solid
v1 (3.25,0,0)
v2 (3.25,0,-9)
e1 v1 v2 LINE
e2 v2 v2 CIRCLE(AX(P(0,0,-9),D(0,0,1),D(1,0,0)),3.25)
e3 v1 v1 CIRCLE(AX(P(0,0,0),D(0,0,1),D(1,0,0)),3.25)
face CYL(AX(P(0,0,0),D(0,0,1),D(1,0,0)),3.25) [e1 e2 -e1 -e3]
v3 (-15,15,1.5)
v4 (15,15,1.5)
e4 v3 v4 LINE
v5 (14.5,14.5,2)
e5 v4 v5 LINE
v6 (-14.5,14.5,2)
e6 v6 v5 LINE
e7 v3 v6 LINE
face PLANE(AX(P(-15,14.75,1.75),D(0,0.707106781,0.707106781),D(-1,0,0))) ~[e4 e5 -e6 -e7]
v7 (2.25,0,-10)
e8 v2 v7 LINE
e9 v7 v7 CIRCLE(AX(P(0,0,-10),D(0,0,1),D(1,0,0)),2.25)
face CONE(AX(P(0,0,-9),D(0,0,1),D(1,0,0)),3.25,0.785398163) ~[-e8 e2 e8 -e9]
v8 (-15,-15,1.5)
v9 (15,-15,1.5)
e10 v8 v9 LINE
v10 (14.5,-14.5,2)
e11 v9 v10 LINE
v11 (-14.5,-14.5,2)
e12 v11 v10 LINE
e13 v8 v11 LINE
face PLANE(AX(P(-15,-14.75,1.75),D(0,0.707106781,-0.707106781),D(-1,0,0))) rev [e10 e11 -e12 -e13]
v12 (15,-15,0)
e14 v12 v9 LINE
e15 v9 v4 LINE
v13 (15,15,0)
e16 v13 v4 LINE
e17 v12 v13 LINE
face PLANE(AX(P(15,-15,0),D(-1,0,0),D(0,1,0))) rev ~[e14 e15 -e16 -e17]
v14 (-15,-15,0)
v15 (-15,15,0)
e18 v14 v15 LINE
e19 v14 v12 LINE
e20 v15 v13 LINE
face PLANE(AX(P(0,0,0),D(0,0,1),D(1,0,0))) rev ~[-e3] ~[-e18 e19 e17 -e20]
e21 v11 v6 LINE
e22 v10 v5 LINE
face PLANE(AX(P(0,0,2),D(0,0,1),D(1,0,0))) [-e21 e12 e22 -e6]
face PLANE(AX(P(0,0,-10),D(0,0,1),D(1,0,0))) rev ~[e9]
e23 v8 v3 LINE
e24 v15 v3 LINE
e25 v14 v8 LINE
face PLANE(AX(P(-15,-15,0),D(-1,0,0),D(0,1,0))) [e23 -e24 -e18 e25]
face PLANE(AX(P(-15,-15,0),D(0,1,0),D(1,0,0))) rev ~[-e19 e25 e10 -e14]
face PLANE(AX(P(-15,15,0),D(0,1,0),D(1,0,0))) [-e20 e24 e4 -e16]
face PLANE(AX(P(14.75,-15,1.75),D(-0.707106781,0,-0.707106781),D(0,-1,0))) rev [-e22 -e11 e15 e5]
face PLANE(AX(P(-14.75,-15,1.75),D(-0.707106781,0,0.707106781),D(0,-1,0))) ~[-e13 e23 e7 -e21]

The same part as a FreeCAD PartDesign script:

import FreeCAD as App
import Part
import Sketcher

V = App.Vector


def edges_at(feature, points):
    """Names of the edges that pass closest to the given points."""
    edges = feature.Shape.Edges
    near = lambda p: min(range(len(edges)), key=lambda i: edges[i].distToShape(Part.Vertex(*p))[0])
    return sorted({f"Edge{near(p) + 1}" for p in points})

doc = App.newDocument("Part")
body = doc.addObject("PartDesign::Body", "Body")

sketch1 = body.newObject("Sketcher::SketchObject", "Sketch")
sketch1.AttachmentSupport = (doc.getObject("XY_Plane"), [""])
sketch1.MapMode = "FlatFace"
sketch1.addGeometry(Part.LineSegment(V(-15, 15, 0), V(-15, -15, 0)), False)
sketch1.addGeometry(Part.LineSegment(V(-15, -15, 0), V(15, -15, 0)), False)
sketch1.addGeometry(Part.LineSegment(V(15, -15, 0), V(15, 15, 0)), False)
sketch1.addGeometry(Part.LineSegment(V(15, 15, 0), V(-15, 15, 0)), False)
sketch1.addConstraint(Sketcher.Constraint("Coincident", 0, 2, 1, 1))
sketch1.addConstraint(Sketcher.Constraint("Coincident", 1, 2, 2, 1))
sketch1.addConstraint(Sketcher.Constraint("Coincident", 2, 2, 3, 1))
sketch1.addConstraint(Sketcher.Constraint("Coincident", 3, 2, 0, 1))
sketch1.addConstraint(Sketcher.Constraint("Vertical", 0))
sketch1.addConstraint(Sketcher.Constraint("Horizontal", 1))
sketch1.addConstraint(Sketcher.Constraint("Vertical", 2))
sketch1.addConstraint(Sketcher.Constraint("Horizontal", 3))
sketch1.addConstraint(Sketcher.Constraint("Symmetric", 0, 2, 2, 2, -1, 1))
sketch1.addConstraint(Sketcher.Constraint("Equal", 3, 0))
sketch1.addConstraint(Sketcher.Constraint("DistanceX", 1, 1, 1, 2, 30.0))
pad1 = body.newObject("PartDesign::Pad", "Pad")
pad1.Profile = sketch1
pad1.Length = 2
doc.recompute()

chamfer = body.newObject("PartDesign::Chamfer", "Chamfer")
chamfer.Base = (pad1, edges_at(pad1, [
    (-15, 0, 2),
    (0, 15, 2),
    (15, 0, 2),
    (0, -15, 2),
]))
chamfer.Size = 0.5

sketch2 = body.newObject("Sketcher::SketchObject", "Sketch001")
sketch2.AttachmentSupport = (doc.getObject("XY_Plane"), [""])
sketch2.MapMode = "FlatFace"
sketch2.addGeometry(Part.Circle(V(0, 0, 0), V(0, 0, 1), 3.25), False)
sketch2.addConstraint(Sketcher.Constraint("Coincident", 0, 3, -1, 1))
sketch2.addConstraint(Sketcher.Constraint("Diameter", 0, 6.5))
pad2 = body.newObject("PartDesign::Pad", "Pad001")
pad2.Profile = sketch2
pad2.Length = 10
pad2.Reversed = True
doc.recompute()

chamfer2 = body.newObject("PartDesign::Chamfer", "Chamfer001")
chamfer2.Base = (pad2, edges_at(pad2, [(-3.25, 0, -10)]))
chamfer2.Size = 1

doc.recompute()
